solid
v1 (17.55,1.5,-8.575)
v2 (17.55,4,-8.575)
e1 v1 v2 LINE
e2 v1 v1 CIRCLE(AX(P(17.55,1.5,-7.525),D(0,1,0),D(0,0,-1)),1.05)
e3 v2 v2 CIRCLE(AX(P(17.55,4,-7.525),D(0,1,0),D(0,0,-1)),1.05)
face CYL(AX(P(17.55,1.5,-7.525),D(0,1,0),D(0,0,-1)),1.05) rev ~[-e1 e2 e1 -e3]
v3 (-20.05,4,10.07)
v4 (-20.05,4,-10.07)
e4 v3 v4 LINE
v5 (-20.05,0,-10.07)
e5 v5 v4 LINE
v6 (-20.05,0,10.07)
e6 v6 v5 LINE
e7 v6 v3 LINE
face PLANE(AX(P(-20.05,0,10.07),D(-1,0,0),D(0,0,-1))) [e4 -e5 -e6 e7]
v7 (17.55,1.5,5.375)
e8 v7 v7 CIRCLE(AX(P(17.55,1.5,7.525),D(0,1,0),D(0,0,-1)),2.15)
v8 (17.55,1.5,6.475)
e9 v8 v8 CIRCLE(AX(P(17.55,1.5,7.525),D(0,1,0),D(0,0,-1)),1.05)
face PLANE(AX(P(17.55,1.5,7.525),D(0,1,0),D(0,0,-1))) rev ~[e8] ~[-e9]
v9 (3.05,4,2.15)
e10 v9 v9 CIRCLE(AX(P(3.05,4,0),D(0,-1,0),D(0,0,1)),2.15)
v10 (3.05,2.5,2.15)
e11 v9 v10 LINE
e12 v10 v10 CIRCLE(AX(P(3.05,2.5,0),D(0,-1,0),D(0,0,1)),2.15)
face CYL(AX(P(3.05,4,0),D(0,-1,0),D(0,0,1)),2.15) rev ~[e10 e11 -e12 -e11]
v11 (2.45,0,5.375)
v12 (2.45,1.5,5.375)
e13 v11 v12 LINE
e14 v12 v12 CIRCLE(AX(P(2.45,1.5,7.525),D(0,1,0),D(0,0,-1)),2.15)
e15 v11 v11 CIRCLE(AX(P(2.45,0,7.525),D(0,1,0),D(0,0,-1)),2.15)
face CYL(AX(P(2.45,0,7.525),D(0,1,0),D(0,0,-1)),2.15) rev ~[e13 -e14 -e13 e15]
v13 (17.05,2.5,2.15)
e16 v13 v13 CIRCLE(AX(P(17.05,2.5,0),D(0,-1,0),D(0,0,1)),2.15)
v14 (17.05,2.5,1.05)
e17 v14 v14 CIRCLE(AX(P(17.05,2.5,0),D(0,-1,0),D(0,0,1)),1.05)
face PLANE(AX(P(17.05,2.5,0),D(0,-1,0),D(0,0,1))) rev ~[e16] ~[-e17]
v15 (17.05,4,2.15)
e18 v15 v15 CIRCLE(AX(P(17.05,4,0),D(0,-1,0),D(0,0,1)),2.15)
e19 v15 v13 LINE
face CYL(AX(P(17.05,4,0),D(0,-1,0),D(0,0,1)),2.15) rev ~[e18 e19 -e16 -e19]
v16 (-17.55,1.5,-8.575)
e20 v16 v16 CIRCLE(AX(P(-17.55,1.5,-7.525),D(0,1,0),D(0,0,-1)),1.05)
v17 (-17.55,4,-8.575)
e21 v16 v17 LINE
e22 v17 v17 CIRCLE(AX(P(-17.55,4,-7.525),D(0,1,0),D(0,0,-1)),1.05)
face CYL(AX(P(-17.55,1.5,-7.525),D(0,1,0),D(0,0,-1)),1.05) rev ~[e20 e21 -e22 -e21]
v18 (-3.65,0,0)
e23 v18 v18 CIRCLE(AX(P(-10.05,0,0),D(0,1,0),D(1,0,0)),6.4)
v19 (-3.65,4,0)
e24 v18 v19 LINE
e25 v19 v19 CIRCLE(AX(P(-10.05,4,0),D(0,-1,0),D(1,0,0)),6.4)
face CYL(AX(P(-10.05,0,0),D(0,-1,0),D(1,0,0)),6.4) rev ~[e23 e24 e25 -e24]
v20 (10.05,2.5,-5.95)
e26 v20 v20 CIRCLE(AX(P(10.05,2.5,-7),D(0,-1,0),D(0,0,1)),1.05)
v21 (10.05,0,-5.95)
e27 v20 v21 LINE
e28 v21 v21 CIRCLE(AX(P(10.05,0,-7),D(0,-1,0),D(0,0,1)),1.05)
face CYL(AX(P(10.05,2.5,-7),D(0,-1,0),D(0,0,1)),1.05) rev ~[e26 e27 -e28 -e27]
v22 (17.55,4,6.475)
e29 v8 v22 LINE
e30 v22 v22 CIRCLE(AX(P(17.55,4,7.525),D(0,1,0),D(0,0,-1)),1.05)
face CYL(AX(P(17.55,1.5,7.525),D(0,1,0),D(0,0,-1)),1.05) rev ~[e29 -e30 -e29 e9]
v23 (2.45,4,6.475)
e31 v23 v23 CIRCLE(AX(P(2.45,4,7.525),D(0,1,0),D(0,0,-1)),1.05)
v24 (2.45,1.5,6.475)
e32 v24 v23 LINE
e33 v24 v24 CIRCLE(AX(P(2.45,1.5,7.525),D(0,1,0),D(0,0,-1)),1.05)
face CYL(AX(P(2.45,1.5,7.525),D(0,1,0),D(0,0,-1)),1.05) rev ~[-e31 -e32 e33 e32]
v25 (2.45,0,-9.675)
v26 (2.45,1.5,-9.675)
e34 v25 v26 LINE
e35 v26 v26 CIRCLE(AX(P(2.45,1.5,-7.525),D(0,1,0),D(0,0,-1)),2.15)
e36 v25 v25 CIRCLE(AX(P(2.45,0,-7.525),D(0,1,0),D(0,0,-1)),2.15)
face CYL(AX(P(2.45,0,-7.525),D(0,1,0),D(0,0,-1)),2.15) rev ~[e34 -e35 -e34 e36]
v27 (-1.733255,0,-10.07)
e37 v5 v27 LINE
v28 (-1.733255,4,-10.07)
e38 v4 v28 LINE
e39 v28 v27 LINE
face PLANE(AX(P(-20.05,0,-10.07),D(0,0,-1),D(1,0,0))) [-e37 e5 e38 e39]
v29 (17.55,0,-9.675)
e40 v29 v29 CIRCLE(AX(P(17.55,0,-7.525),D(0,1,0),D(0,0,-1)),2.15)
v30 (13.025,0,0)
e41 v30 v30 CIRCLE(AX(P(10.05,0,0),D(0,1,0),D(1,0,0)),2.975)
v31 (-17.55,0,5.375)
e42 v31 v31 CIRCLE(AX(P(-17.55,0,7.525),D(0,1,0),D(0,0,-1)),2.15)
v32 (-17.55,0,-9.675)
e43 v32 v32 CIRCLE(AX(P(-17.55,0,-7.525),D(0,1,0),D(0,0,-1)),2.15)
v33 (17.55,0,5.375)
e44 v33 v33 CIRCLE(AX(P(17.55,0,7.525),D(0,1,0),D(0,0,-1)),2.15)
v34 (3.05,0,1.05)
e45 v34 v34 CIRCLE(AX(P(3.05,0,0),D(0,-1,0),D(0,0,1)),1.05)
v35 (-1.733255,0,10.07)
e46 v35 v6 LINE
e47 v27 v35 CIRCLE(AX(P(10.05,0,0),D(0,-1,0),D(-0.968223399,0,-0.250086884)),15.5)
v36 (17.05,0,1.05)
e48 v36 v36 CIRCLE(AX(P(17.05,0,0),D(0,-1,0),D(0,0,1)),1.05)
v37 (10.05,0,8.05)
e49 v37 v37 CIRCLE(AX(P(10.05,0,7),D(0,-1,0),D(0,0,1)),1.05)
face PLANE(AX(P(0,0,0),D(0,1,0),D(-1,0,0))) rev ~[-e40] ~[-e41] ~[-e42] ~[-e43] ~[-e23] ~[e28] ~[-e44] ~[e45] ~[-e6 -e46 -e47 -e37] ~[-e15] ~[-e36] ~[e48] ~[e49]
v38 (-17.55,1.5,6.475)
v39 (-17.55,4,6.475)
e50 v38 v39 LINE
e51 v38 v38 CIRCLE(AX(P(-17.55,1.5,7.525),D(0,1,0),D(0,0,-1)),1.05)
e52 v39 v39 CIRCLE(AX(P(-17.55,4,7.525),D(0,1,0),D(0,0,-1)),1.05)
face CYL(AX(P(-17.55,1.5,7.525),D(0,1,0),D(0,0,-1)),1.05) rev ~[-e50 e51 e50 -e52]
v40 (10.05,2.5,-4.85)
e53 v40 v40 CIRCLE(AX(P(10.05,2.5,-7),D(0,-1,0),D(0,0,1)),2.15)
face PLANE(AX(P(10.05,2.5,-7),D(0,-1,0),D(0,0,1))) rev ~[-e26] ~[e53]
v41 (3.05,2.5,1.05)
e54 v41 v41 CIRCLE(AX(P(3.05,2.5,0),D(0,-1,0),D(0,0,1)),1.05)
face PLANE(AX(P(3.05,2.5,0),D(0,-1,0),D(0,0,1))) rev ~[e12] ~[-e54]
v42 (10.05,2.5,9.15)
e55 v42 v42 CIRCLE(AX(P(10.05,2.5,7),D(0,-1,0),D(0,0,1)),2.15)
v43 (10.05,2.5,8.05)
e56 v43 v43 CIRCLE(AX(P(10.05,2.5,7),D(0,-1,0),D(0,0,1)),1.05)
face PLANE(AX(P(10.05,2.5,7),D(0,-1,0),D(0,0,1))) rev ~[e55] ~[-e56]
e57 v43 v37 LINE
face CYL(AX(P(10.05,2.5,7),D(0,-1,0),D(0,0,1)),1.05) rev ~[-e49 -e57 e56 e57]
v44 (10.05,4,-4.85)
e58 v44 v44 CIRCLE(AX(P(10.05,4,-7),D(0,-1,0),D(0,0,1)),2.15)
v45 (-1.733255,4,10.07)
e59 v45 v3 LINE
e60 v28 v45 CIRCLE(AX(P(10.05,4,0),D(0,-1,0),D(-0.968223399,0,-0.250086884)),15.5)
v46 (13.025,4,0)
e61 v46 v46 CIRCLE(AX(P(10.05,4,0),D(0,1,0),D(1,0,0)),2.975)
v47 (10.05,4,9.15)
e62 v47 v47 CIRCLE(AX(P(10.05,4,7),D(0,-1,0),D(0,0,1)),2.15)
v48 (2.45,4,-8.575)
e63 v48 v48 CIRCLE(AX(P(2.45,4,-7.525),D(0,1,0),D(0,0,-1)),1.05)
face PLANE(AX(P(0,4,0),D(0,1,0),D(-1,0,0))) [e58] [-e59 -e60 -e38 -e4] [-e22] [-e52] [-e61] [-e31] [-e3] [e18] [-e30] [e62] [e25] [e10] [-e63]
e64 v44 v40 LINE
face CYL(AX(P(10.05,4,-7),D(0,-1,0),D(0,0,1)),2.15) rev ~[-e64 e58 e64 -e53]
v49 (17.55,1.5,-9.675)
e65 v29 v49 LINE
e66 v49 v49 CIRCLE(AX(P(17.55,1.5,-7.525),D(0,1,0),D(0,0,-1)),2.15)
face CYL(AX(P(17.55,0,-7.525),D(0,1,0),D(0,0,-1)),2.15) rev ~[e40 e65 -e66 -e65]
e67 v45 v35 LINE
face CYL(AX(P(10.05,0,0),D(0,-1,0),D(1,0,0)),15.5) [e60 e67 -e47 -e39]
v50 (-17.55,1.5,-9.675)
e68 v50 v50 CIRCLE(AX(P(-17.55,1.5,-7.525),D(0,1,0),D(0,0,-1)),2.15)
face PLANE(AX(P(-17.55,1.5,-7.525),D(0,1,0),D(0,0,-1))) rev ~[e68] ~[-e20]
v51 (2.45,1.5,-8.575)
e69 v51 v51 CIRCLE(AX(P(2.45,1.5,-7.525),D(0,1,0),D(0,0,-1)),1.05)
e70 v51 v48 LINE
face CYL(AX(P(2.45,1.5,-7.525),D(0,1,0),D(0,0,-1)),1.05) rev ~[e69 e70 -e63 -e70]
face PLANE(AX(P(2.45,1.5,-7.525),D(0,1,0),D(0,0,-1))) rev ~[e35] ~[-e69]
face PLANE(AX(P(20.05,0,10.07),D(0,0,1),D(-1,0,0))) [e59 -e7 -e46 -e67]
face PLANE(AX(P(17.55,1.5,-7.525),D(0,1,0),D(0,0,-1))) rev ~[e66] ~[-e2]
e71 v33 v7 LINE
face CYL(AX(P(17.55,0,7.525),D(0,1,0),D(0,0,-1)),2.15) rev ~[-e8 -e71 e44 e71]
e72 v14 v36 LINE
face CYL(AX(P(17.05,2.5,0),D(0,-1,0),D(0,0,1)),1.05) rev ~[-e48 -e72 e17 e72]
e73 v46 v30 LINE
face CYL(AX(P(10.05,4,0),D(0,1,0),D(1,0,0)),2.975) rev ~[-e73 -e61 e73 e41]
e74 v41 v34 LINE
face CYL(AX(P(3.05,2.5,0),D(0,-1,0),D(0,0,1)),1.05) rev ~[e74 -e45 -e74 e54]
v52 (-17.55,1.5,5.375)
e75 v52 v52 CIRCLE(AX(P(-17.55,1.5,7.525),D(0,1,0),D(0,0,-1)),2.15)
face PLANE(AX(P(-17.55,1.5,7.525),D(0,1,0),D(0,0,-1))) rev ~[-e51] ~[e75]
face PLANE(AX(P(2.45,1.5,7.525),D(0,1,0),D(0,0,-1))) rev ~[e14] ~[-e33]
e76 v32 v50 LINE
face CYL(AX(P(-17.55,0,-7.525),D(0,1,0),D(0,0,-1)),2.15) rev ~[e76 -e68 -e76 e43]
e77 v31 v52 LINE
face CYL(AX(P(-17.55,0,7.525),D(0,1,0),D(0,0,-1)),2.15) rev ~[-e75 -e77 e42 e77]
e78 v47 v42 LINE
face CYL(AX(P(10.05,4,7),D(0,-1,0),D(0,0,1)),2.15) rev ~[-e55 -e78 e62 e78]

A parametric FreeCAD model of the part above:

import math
import FreeCAD as App
import Part
import Sketcher

V = App.Vector
Q = App.Units.Quantity


def add_polygon(sketch, points):
    """Adds a closed chain of lines whose ends are joined by coincident constraints."""
    first, n = sketch.GeometryCount, len(points)
    for a, b in zip(points, points[1:] + points[:1]):
        sketch.addGeometry(Part.LineSegment(App.Vector(*a, 0), App.Vector(*b, 0)), False)
    for i in range(n):
        sketch.addConstraint(Sketcher.Constraint("Coincident", first + i, 2, first + (i + 1) % n, 1))

doc = App.newDocument("Part")
body = doc.addObject("PartDesign::Body", "Body")

sketch1 = body.newObject("Sketcher::SketchObject", "Sketch")
sketch1.AttachmentSupport = (doc.getObject("XZ_Plane"), [""])
sketch1.MapMode = "FlatFace"
add_polygon(sketch1, [(20, -10), (-20, -10), (-20, 10), (20, 10)])
sketch1.addConstraint([
    Sketcher.Constraint("Horizontal", 0),
    Sketcher.Constraint("Vertical", 1),
    Sketcher.Constraint("Horizontal", 2),
    Sketcher.Constraint("Vertical", 3),
    Sketcher.Constraint("Symmetric", 0, 2, 2, 2, -1, 1),
    Sketcher.Constraint("DistanceX", 0, 2, 0, 1, Q("40.1 mm")),
    Sketcher.Constraint("DistanceY", 1, 1, 1, 2, Q("20.14 mm")),
])
pad1 = body.newObject("PartDesign::Pad", "Pad")
pad1.Profile = sketch1
pad1.Length = 4
pad1.Reversed = True

sketch2 = body.newObject("Sketcher::SketchObject", "Sketch001")
sketch2.AttachmentSupport = (doc.getObject("XZ_Plane"), [""])
sketch2.MapMode = "FlatFace"
sketch2.addGeometry(Part.Circle(V(-10, 0, 0), V(0, 0, 1), 6), False)
sketch2.addConstraint([
    Sketcher.Constraint("PointOnObject", 0, 3, -1),
    Sketcher.Constraint("Diameter", 0, Q("12.8 mm")),
    Sketcher.Constraint("DistanceX", 0, 3, -1, 1, Q("10.05 mm")),
])
pocket1 = body.newObject("PartDesign::Pocket", "Pocket")
pocket1.Profile = sketch2
pocket1.Type = "ThroughAll"

sketch3 = body.newObject("Sketcher::SketchObject", "Sketch002")
sketch3.AttachmentSupport = (doc.getObject("XZ_Plane"), [""])
sketch3.MapMode = "FlatFace"
sketch3.addGeometry([
    Part.ArcOfCircle(Part.Circle(V(10, 0, 0), V(0, 0, 1), 16), math.radians(-166), math.radians(166)),
    Part.ArcOfCircle(Part.Circle(V(-10, 0, 0), V(0, 0, 1), 6), math.radians(-37), math.radians(37)),
], False)
sketch3.addConstraint([
    Sketcher.Constraint("Coincident", 0, 1, 1, 1),
    Sketcher.Constraint("Coincident", 1, 2, 0, 2),
    Sketcher.Constraint("Symmetric", 0, 3, 1, 3, -1, 1),
    Sketcher.Constraint("PointOnObject", 0, 3, -1),
    Sketcher.Constraint("Radius", 0, Q("15.5 mm")),
    Sketcher.Constraint("Radius", 1, Q("6.4 mm")),
    Sketcher.Constraint("DistanceX", 1, 3, 0, 3, Q("20.1 mm")),
])
pad2 = body.newObject("PartDesign::Pad", "Pad001")
pad2.Profile = sketch3
pad2.Length = 4
pad2.Reversed = True

sketch4 = body.newObject("Sketcher::SketchObject", "Sketch003")
sketch4.AttachmentSupport = (doc.getObject("XZ_Plane"), [""])
sketch4.MapMode = "FlatFace"
sketch4.AttachmentOffset = App.Placement(V(0, 0, -4), App.Rotation())
sketch4.addGeometry([
    Part.Circle(V(10.1, 7, 0), V(0, 0, 1), 1.1),
    Part.Circle(V(3, 0, 0), V(0, 0, 1), 1.1),
    Part.Circle(V(17.1, 0, 0), V(0, 0, 1), 1.1),
    Part.Circle(V(10.1, -7, 0), V(0, 0, 1), 1.1),
], False)
sketch4.addConstraint([
    Sketcher.Constraint("Equal", 0, 1),
    Sketcher.Constraint("Equal", 1, 2),
    Sketcher.Constraint("Equal", 2, 3),
    Sketcher.Constraint("Symmetric", 0, 3, 3, 3, -1),
    Sketcher.Constraint("PointOnObject", 1, 3, -1),
    Sketcher.Constraint("PointOnObject", 2, 3, -1),
    Sketcher.Constraint("Diameter", 0, Q("2.1 mm")),
    Sketcher.Constraint("DistanceY", -1, 1, 0, 3, Q("7 mm")),
    Sketcher.Constraint("DistanceX", 1, 3, 0, 3, Q("7 mm")),
    Sketcher.Constraint("DistanceX", 0, 3, 2, 3, Q("7 mm")),
    Sketcher.Constraint("DistanceX", -1, 1, 0, 3, Q("10.05 mm")),
])
doc.recompute()
hole = body.newObject("PartDesign::Hole", "Hole")
hole.Profile = sketch4
hole.ThreadType = "None"
hole.Diameter = 2.1
hole.DepthType = "ThroughAll"
hole.HoleCutType = "Counterbore"
hole.HoleCutDiameter = 4.3
hole.HoleCutDepth = 1.5
hole.Reversed = True

sketch5 = body.newObject("Sketcher::SketchObject", "Sketch004")
sketch5.AttachmentSupport = (doc.getObject("XZ_Plane"), [""])
sketch5.MapMode = "FlatFace"
sketch5.AttachmentOffset = App.Placement(V(0, 0, -4), App.Rotation())
sketch5.addGeometry(Part.Circle(V(10.1, 0, 0), V(0, 0, 1), 3), False)
sketch5.addConstraint([
    Sketcher.Constraint("PointOnObject", 0, 3, -1),
    Sketcher.Constraint("Diameter", 0, Q("5.95 mm")),
    Sketcher.Constraint("DistanceX", -1, 1, 0, 3, Q("10.05 mm")),
])
pocket2 = body.newObject("PartDesign::Pocket", "Pocket001")
pocket2.Profile = sketch5
pocket2.Type = "ThroughAll"
pocket2.Reversed = True

sketch6 = body.newObject("Sketcher::SketchObject", "Sketch005")
sketch6.AttachmentSupport = (doc.getObject("XZ_Plane"), [""])
sketch6.MapMode = "FlatFace"
sketch6.addGeometry([
    Part.Circle(V(17.6, -7.5, 0), V(0, 0, 1), 1.1),
    Part.Circle(V(2.5, -7.5, 0), V(0, 0, 1), 1.1),
    Part.Circle(V(-17.6, -7.5, 0), V(0, 0, 1), 1.1),
    Part.Circle(V(17.6, 7.5, 0), V(0, 0, 1), 1.1),
    Part.Circle(V(2.5, 7.5, 0), V(0, 0, 1), 1.1),
    Part.Circle(V(-17.6, 7.5, 0), V(0, 0, 1), 1.1),
], False)
sketch6.addConstraint([
    Sketcher.Constraint("Equal", 0, 1),
    Sketcher.Constraint("Equal", 1, 2),
    Sketcher.Constraint("Equal", 2, 3),
    Sketcher.Constraint("Equal", 3, 4),
    Sketcher.Constraint("Equal", 4, 5),
    Sketcher.Constraint("Symmetric", 2, 3, 3, 3, -1, 1),
    Sketcher.Constraint("Symmetric", 0, 3, 5, 3, -1, 1),
    Sketcher.Constraint("Symmetric", 0, 3, 2, 3, -2),
    Sketcher.Constraint("Symmetric", 1, 3, 4, 3, -1),
    Sketcher.Constraint("Horizontal", 0, 3, 1, 3),
    Sketcher.Constraint("Diameter", 0, Q("2.1 mm")),
    Sketcher.Constraint("DistanceX", 2, 3, 1, 3, Q("20 mm")),
    Sketcher.Constraint("DistanceX", 1, 3, 0, 3, Q("15.1 mm")),
    Sketcher.Constraint("DistanceY", 0, 3, 3, 3, Q("15.05 mm")),
])
doc.recompute()
hole2 = body.newObject("PartDesign::Hole", "Hole001")
hole2.Profile = sketch6
hole2.ThreadType = "None"
hole2.Diameter = 2.1
hole2.DepthType = "ThroughAll"
hole2.HoleCutType = "Counterbore"
hole2.HoleCutDiameter = 4.3
hole2.HoleCutDepth = 1.5

doc.recompute()
